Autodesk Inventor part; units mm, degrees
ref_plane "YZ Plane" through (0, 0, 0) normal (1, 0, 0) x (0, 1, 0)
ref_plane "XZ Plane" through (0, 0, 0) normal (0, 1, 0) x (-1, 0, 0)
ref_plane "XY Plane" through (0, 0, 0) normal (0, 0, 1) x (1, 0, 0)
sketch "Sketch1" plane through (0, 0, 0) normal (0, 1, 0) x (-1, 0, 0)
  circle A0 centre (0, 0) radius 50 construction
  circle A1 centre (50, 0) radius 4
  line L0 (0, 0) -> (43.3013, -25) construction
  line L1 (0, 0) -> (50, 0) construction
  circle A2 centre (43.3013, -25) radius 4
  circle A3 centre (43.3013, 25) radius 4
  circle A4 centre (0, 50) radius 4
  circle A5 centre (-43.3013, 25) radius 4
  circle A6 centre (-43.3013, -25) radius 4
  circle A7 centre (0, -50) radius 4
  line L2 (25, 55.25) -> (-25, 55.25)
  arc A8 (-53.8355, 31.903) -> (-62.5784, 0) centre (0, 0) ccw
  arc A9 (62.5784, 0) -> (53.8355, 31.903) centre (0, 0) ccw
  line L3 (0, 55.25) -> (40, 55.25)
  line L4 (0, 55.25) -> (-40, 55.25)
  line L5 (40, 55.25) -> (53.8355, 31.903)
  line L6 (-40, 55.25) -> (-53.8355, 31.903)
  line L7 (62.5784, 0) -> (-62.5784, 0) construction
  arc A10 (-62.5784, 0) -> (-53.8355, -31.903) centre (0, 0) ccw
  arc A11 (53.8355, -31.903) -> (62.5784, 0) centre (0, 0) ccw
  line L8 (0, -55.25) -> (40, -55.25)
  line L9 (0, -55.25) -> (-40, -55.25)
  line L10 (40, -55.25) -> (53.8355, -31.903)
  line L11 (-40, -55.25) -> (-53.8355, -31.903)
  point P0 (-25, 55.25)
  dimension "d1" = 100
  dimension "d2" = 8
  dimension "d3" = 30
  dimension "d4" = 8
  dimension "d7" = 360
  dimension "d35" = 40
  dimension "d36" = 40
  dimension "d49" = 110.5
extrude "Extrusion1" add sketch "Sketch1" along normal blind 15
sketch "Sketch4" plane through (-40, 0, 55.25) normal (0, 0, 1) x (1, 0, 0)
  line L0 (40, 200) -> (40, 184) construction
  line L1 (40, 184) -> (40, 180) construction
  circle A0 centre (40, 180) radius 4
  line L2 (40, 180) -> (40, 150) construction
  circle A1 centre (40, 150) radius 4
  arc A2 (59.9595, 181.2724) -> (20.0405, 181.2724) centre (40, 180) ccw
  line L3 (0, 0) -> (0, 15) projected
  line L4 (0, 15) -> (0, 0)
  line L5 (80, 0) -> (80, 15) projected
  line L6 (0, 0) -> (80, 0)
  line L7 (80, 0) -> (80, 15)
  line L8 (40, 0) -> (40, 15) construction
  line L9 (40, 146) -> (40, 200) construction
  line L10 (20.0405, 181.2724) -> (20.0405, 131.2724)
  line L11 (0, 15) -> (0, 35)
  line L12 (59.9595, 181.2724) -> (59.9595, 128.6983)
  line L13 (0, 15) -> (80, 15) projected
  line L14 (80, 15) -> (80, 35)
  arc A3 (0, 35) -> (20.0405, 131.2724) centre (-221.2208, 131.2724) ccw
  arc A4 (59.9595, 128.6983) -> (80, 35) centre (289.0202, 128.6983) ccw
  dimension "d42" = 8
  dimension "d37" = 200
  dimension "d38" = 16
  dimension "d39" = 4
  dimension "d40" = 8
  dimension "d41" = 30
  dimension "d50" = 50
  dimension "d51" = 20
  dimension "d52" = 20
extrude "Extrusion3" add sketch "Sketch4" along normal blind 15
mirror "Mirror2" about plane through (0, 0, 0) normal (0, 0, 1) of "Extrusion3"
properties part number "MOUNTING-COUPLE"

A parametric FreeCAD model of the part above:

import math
import FreeCAD as App
import Part
import Sketcher

V = App.Vector
Q = App.Units.Quantity

doc = App.newDocument("Part")
params = doc.addObject("Spreadsheet::Sheet", "Params")
for row, (alias, value) in enumerate([
    ("sketch1_diameter", "8 mm"),
    ("pad1_length", "15 mm"),
    ("sketch2_diameter", "8 mm"),
    ("sketch2_radius", "20 mm"),
    ("sketch2_height", "50 mm"),
    ("sketch2_width", "80 mm"),
    ("sketch2_height2", "35 mm"),
    ("pad2_length", "15 mm"),
], start=1):
    params.set(f"A{row}", alias)
    params.set(f"B{row}", "=" + value)
    params.setAlias(f"B{row}", alias)

body = doc.addObject("PartDesign::Body", "Body")

sketch1 = body.newObject("Sketcher::SketchObject", "Sketch")
sketch1.AttachmentSupport = (doc.getObject("XZ_Plane"), [""])
sketch1.MapMode = "FlatFace"
sketch1.addGeometry(Part.LineSegment(V(-40, 55.25, 0), V(40, 55.25, 0)), False)
sketch1.addGeometry(Part.LineSegment(V(40, 55.25, 0), V(53.8355, 31.903, 0)), False)
sketch1.addGeometry(Part.ArcOfCircle(Part.Circle(V(0, 0, 0), V(0, 0, 1), 62.5784), math.radians(0), math.radians(30.651047)), False)
sketch1.addGeometry(Part.ArcOfCircle(Part.Circle(V(0, 0, 0), V(0, 0, 1), 62.578451), math.radians(-30.651047), math.radians(0)), False)
sketch1.addGeometry(Part.LineSegment(V(53.8355, -31.903, 0), V(40, -55.25, 0)), False)
sketch1.addGeometry(Part.LineSegment(V(40, -55.25, 0), V(-40, -55.25, 0)), False)
sketch1.addGeometry(Part.LineSegment(V(-40, -55.25, 0), V(-53.8355, -31.903, 0)), False)
sketch1.addGeometry(Part.ArcOfCircle(Part.Circle(V(0, 0, 0), V(0, 0, 1), 62.5784), math.radians(180), math.radians(210.651047)), False)
sketch1.addGeometry(Part.ArcOfCircle(Part.Circle(V(0, 0, 0), V(0, 0, 1), 62.578451), math.radians(149.348953), math.radians(180)), False)
sketch1.addGeometry(Part.LineSegment(V(-53.8355, 31.903, 0), V(-40, 55.25, 0)), False)
sketch1.addGeometry(Part.Circle(V(43.3013, -25, 0), V(0, 0, 1), 4), False)
sketch1.addGeometry(Part.Circle(V(0, -50, 0), V(0, 0, 1), 4), False)
sketch1.addGeometry(Part.Circle(V(-43.3013, -25, 0), V(0, 0, 1), 4), False)
sketch1.addGeometry(Part.Circle(V(43.3013, 25, 0), V(0, 0, 1), 4), False)
sketch1.addGeometry(Part.Circle(V(-50, 0, 0), V(0, 0, 1), 4), False)
sketch1.addGeometry(Part.Circle(V(-43.3013, 25, 0), V(0, 0, 1), 4), False)
sketch1.addGeometry(Part.Circle(V(0, 50, 0), V(0, 0, 1), 4), False)
sketch1.addConstraint(Sketcher.Constraint("Coincident", 0, 2, 1, 1))
sketch1.addConstraint(Sketcher.Constraint("Tangent", 1, 2, 2, 2))
sketch1.addConstraint(Sketcher.Constraint("Tangent", 2, 1, 3, 2))
sketch1.addConstraint(Sketcher.Constraint("Tangent", 3, 1, 4, 1))
sketch1.addConstraint(Sketcher.Constraint("Coincident", 4, 2, 5, 1))
sketch1.addConstraint(Sketcher.Constraint("Coincident", 5, 2, 6, 1))
sketch1.addConstraint(Sketcher.Constraint("Tangent", 6, 2, 7, 2))
sketch1.addConstraint(Sketcher.Constraint("Tangent", 7, 1, 8, 2))
sketch1.addConstraint(Sketcher.Constraint("Tangent", 8, 1, 9, 1))
sketch1.addConstraint(Sketcher.Constraint("Coincident", 9, 2, 0, 1))
sketch1.addConstraint(Sketcher.Constraint("Horizontal", 0))
sketch1.addConstraint(Sketcher.Constraint("Horizontal", 5))
sketch1.addConstraint(Sketcher.Constraint("Coincident", 2, 3, -1, 1))
sketch1.addConstraint(Sketcher.Constraint("Coincident", 7, 3, -1, 1))
sketch1.addConstraint(Sketcher.Constraint("Equal", 2, 3))
sketch1.addConstraint(Sketcher.Constraint("Equal", 3, 7))
sketch1.addConstraint(Sketcher.Constraint("Equal", 7, 8))
sketch1.addConstraint(Sketcher.Constraint("Equal", 10, 11))
sketch1.addConstraint(Sketcher.Constraint("Equal", 11, 12))
sketch1.addConstraint(Sketcher.Constraint("Equal", 12, 13))
sketch1.addConstraint(Sketcher.Constraint("Equal", 13, 14))
sketch1.addConstraint(Sketcher.Constraint("Equal", 14, 15))
sketch1.addConstraint(Sketcher.Constraint("Equal", 15, 16))
sketch1.addConstraint(Sketcher.Constraint("Symmetric", 12, 3, 13, 3, -1, 1))
sketch1.addConstraint(Sketcher.Constraint("Symmetric", 10, 3, 15, 3, -1, 1))
sketch1.addConstraint(Sketcher.Constraint("Symmetric", 11, 3, 16, 3, -1, 1))
sketch1.addConstraint(Sketcher.Constraint("Symmetric", 0, 2, 5, 2, -1, 1))
sketch1.addConstraint(Sketcher.Constraint("Symmetric", 10, 3, 12, 3, -2))
sketch1.addConstraint(Sketcher.Constraint("PointOnObject", 11, 3, -2))
sketch1.addConstraint(Sketcher.Constraint("PointOnObject", 14, 3, -1))
sketch1.addConstraint(Sketcher.Constraint("PointOnObject", 2, 1, -1))
sketch1.addConstraint(Sketcher.Constraint("PointOnObject", 7, 1, -1))
sketch1.addConstraint(Sketcher.Constraint("Parallel", 4, 9))
sketch1.addConstraint(Sketcher.Constraint("Horizontal", 3, 1, 6, 2))
sketch1.addConstraint(Sketcher.Constraint("Diameter", 10, 8.0))
sketch1.addConstraint(Sketcher.Constraint("DistanceX", -1, 1, 0, 2, 40.0))
sketch1.addConstraint(Sketcher.Constraint("DistanceY", 10, 3, -1, 1, 25.0))
sketch1.addConstraint(Sketcher.Constraint("DistanceY", 11, 3, -1, 1, 50.0))
sketch1.addConstraint(Sketcher.Constraint("DistanceX", 14, 3, -1, 1, 50.0))
sketch1.addConstraint(Sketcher.Constraint("Angle", 1, Q("-59.349 deg")))
sketch1.addConstraint(Sketcher.Constraint("Radius", 2, 62.5784))
sketch1.addConstraint(Sketcher.Constraint("DistanceX", 10, 3, 2, 1, 19.277))
sketch1.setExpression("Constraints[34]", "Params.sketch1_diameter")
pad1 = body.newObject("PartDesign::Pad", "Pad")
pad1.Profile = sketch1
pad1.setExpression("Length", "Params.pad1_length")
pad1.Reversed = True

sketch2 = body.newObject("Sketcher::SketchObject", "Sketch001")
sketch2.AttachmentSupport = (doc.getObject("XY_Plane"), [""])
sketch2.MapMode = "FlatFace"
sketch2.AttachmentOffset = App.Placement(V(0, 0, 55.25), App.Rotation())
sketch2.addGeometry(Part.LineSegment(V(19.9595, 128.6983, 0), V(19.9595, 181.2724, 0)), False)
sketch2.addGeometry(Part.ArcOfCircle(Part.Circle(V(0, 180, 0), V(0, 0, 1), 20.000016), math.radians(3.647618), math.radians(176.352382)), False)
sketch2.addGeometry(Part.LineSegment(V(-19.9595, 181.2724, 0), V(-19.9595, 131.2724, 0)), False)
sketch2.addGeometry(Part.ArcOfCircle(Part.Circle(V(-261.2208, 131.2724, 0), V(0, 0, 1), 241.261305), math.radians(-23.518046), math.radians(0)), False)
sketch2.addGeometry(Part.LineSegment(V(-40, 35, 0), V(-40, 0, 0)), False)
sketch2.addGeometry(Part.LineSegment(V(-40, 0, 0), V(40, 0, 0)), False)
sketch2.addGeometry(Part.LineSegment(V(40, 0, 0), V(40, 35, 0)), False)
sketch2.addGeometry(Part.ArcOfCircle(Part.Circle(V(249.0202, 128.6983, 0), V(0, 0, 1), 229.0607), math.radians(180), math.radians(204.145448)), False)
sketch2.addGeometry(Part.Circle(V(0, 150, 0), V(0, 0, 1), 4), False)
sketch2.addGeometry(Part.Circle(V(0, 180, 0), V(0, 0, 1), 4), False)
sketch2.addConstraint(Sketcher.Constraint("Coincident", 0, 2, 1, 1))
sketch2.addConstraint(Sketcher.Constraint("Coincident", 1, 2, 2, 1))
sketch2.addConstraint(Sketcher.Constraint("Tangent", 2, 2, 3, 2))
sketch2.addConstraint(Sketcher.Constraint("Coincident", 3, 1, 4, 1))
sketch2.addConstraint(Sketcher.Constraint("Coincident", 4, 2, 5, 1))
sketch2.addConstraint(Sketcher.Constraint("Coincident", 5, 2, 6, 1))
sketch2.addConstraint(Sketcher.Constraint("Coincident", 6, 2, 7, 2))
sketch2.addConstraint(Sketcher.Constraint("Tangent", 7, 1, 0, 1))
sketch2.addConstraint(Sketcher.Constraint("Vertical", 0))
sketch2.addConstraint(Sketcher.Constraint("Vertical", 2))
sketch2.addConstraint(Sketcher.Constraint("Vertical", 4))
sketch2.addConstraint(Sketcher.Constraint("Horizontal", 5))
sketch2.addConstraint(Sketcher.Constraint("Vertical", 6))
sketch2.addConstraint(Sketcher.Constraint("Coincident", 9, 3, 1, 3))
sketch2.addConstraint(Sketcher.Constraint("Equal", 8, 9))
sketch2.addConstraint(Sketcher.Constraint("Symmetric", 4, 2, 5, 2, -1, 1))
sketch2.addConstraint(Sketcher.Constraint("Symmetric", 0, 2, 1, 2, -2))
sketch2.addConstraint(Sketcher.Constraint("PointOnObject", 8, 3, -2))
sketch2.addConstraint(Sketcher.Constraint("Horizontal", 3, 1, 6, 2))
sketch2.addConstraint(Sketcher.Constraint("Diameter", 8, 8.0))
sketch2.addConstraint(Sketcher.Constraint("Radius", 1, 20.0))
sketch2.addConstraint(Sketcher.Constraint("DistanceY", 2, 2, 2, 1, 50.0))
sketch2.addConstraint(Sketcher.Constraint("DistanceY", 8, 3, 1, 3, 30.0))
sketch2.addConstraint(Sketcher.Constraint("DistanceX", 5, 1, 5, 2, 80.0))
sketch2.addConstraint(Sketcher.Constraint("DistanceY", 4, 2, 4, 1, 35.0))
sketch2.addConstraint(Sketcher.Constraint("DistanceY", -1, 1, 1, 3, 180.0))
sketch2.addConstraint(Sketcher.Constraint("Radius", 3, 241.2613))
sketch2.addConstraint(Sketcher.Constraint("Radius", 7, 229.0607))
sketch2.setExpression("Constraints[19]", "Params.sketch2_diameter")
sketch2.setExpression("Constraints[20]", "Params.sketch2_radius")
sketch2.setExpression("Constraints[21]", "Params.sketch2_height")
sketch2.setExpression("Constraints[23]", "Params.sketch2_width")
sketch2.setExpression("Constraints[24]", "Params.sketch2_height2")
pad2 = body.newObject("PartDesign::Pad", "Pad001")
pad2.Profile = sketch2
pad2.setExpression("Length", "Params.pad2_length")
doc.recompute()

mirrored = body.newObject("PartDesign::Mirrored", "Mirrored")
mirrored.Originals = [pad2]
mirrored.MirrorPlane = (doc.getObject("XY_Plane"), [""])
body.Tip = mirrored

doc.recompute()
